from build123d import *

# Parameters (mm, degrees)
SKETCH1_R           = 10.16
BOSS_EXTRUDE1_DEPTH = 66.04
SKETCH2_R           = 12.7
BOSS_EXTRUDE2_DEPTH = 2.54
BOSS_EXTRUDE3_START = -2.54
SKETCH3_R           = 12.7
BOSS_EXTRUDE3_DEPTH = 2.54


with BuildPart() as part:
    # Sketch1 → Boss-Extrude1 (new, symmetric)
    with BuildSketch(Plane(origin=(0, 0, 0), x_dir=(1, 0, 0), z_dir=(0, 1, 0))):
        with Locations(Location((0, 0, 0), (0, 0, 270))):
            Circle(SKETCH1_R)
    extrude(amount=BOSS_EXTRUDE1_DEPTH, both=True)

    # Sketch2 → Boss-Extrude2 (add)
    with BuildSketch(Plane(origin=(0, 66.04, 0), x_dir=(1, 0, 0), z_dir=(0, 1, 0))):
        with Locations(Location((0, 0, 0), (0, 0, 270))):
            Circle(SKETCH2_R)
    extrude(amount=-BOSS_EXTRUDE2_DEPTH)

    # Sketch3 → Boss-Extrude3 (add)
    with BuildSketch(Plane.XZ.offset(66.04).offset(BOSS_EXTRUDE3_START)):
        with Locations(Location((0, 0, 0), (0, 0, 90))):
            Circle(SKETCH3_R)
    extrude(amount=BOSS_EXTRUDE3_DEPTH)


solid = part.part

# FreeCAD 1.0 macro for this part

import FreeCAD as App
import Part
import Sketcher

V = App.Vector
Q = App.Units.Quantity

doc = App.newDocument("Part")
body = doc.addObject("PartDesign::Body", "Body")

# Sketch on XZ plane
sketch1 = doc.addObject("Sketcher::SketchObject", "Sketch")
body.addObject(sketch1)
sketch1.AttachmentSupport = (doc.XZ_Plane, [""])
sketch1.MapMode = "FlatFace"
sketch1.addGeometry(Part.Circle(V(0, 0, 0), V(0, 0, 1), 10), False)
sketch1.addConstraint([
    Sketcher.Constraint("Coincident", 0, 3, -1, 1),
    Sketcher.Constraint("Diameter", 0, Q("0.8 in")),
])
pad1 = doc.addObject("PartDesign::Pad", "Pad")
body.addObject(pad1)
pad1.Profile = sketch1
pad1.Length = Q("5.2 in")
pad1.Midplane = True

# Sketch on XZ plane
sketch2 = doc.addObject("Sketcher::SketchObject", "Sketch001")
body.addObject(sketch2)
sketch2.AttachmentSupport = (doc.XZ_Plane, [""])
sketch2.MapMode = "FlatFace"
sketch2.AttachmentOffset = App.Placement(V(0, 0, -2.6 * 25.4), App.Rotation())
sketch2.addGeometry(Part.Circle(V(0, 0, 0), V(0, 0, 1), 13), False)
sketch2.addConstraint([
    Sketcher.Constraint("Coincident", 0, 3, -1, 1),
    Sketcher.Constraint("Diameter", 0, Q("1 in")),
])
pad2 = doc.addObject("PartDesign::Pad", "Pad001")
body.addObject(pad2)
pad2.Profile = sketch2
pad2.Length = Q("0.1 in")

# Sketch on XZ plane
sketch3 = doc.addObject("Sketcher::SketchObject", "Sketch002")
body.addObject(sketch3)
sketch3.AttachmentSupport = (doc.XZ_Plane, [""])
sketch3.MapMode = "FlatFace"
sketch3.AttachmentOffset = App.Placement(V(0, 0, 2.5 * 25.4), App.Rotation())
sketch3.addGeometry(Part.Circle(V(0, 0, 0), V(0, 0, 1), 13), False)
sketch3.addConstraint([
    Sketcher.Constraint("Coincident", 0, 3, -1, 1),
    Sketcher.Constraint("Diameter", 0, Q("1 in")),
])
pad3 = doc.addObject("PartDesign::Pad", "Pad002")
body.addObject(pad3)
pad3.Profile = sketch3
pad3.Length = Q("0.1 in")

doc.recompute()
